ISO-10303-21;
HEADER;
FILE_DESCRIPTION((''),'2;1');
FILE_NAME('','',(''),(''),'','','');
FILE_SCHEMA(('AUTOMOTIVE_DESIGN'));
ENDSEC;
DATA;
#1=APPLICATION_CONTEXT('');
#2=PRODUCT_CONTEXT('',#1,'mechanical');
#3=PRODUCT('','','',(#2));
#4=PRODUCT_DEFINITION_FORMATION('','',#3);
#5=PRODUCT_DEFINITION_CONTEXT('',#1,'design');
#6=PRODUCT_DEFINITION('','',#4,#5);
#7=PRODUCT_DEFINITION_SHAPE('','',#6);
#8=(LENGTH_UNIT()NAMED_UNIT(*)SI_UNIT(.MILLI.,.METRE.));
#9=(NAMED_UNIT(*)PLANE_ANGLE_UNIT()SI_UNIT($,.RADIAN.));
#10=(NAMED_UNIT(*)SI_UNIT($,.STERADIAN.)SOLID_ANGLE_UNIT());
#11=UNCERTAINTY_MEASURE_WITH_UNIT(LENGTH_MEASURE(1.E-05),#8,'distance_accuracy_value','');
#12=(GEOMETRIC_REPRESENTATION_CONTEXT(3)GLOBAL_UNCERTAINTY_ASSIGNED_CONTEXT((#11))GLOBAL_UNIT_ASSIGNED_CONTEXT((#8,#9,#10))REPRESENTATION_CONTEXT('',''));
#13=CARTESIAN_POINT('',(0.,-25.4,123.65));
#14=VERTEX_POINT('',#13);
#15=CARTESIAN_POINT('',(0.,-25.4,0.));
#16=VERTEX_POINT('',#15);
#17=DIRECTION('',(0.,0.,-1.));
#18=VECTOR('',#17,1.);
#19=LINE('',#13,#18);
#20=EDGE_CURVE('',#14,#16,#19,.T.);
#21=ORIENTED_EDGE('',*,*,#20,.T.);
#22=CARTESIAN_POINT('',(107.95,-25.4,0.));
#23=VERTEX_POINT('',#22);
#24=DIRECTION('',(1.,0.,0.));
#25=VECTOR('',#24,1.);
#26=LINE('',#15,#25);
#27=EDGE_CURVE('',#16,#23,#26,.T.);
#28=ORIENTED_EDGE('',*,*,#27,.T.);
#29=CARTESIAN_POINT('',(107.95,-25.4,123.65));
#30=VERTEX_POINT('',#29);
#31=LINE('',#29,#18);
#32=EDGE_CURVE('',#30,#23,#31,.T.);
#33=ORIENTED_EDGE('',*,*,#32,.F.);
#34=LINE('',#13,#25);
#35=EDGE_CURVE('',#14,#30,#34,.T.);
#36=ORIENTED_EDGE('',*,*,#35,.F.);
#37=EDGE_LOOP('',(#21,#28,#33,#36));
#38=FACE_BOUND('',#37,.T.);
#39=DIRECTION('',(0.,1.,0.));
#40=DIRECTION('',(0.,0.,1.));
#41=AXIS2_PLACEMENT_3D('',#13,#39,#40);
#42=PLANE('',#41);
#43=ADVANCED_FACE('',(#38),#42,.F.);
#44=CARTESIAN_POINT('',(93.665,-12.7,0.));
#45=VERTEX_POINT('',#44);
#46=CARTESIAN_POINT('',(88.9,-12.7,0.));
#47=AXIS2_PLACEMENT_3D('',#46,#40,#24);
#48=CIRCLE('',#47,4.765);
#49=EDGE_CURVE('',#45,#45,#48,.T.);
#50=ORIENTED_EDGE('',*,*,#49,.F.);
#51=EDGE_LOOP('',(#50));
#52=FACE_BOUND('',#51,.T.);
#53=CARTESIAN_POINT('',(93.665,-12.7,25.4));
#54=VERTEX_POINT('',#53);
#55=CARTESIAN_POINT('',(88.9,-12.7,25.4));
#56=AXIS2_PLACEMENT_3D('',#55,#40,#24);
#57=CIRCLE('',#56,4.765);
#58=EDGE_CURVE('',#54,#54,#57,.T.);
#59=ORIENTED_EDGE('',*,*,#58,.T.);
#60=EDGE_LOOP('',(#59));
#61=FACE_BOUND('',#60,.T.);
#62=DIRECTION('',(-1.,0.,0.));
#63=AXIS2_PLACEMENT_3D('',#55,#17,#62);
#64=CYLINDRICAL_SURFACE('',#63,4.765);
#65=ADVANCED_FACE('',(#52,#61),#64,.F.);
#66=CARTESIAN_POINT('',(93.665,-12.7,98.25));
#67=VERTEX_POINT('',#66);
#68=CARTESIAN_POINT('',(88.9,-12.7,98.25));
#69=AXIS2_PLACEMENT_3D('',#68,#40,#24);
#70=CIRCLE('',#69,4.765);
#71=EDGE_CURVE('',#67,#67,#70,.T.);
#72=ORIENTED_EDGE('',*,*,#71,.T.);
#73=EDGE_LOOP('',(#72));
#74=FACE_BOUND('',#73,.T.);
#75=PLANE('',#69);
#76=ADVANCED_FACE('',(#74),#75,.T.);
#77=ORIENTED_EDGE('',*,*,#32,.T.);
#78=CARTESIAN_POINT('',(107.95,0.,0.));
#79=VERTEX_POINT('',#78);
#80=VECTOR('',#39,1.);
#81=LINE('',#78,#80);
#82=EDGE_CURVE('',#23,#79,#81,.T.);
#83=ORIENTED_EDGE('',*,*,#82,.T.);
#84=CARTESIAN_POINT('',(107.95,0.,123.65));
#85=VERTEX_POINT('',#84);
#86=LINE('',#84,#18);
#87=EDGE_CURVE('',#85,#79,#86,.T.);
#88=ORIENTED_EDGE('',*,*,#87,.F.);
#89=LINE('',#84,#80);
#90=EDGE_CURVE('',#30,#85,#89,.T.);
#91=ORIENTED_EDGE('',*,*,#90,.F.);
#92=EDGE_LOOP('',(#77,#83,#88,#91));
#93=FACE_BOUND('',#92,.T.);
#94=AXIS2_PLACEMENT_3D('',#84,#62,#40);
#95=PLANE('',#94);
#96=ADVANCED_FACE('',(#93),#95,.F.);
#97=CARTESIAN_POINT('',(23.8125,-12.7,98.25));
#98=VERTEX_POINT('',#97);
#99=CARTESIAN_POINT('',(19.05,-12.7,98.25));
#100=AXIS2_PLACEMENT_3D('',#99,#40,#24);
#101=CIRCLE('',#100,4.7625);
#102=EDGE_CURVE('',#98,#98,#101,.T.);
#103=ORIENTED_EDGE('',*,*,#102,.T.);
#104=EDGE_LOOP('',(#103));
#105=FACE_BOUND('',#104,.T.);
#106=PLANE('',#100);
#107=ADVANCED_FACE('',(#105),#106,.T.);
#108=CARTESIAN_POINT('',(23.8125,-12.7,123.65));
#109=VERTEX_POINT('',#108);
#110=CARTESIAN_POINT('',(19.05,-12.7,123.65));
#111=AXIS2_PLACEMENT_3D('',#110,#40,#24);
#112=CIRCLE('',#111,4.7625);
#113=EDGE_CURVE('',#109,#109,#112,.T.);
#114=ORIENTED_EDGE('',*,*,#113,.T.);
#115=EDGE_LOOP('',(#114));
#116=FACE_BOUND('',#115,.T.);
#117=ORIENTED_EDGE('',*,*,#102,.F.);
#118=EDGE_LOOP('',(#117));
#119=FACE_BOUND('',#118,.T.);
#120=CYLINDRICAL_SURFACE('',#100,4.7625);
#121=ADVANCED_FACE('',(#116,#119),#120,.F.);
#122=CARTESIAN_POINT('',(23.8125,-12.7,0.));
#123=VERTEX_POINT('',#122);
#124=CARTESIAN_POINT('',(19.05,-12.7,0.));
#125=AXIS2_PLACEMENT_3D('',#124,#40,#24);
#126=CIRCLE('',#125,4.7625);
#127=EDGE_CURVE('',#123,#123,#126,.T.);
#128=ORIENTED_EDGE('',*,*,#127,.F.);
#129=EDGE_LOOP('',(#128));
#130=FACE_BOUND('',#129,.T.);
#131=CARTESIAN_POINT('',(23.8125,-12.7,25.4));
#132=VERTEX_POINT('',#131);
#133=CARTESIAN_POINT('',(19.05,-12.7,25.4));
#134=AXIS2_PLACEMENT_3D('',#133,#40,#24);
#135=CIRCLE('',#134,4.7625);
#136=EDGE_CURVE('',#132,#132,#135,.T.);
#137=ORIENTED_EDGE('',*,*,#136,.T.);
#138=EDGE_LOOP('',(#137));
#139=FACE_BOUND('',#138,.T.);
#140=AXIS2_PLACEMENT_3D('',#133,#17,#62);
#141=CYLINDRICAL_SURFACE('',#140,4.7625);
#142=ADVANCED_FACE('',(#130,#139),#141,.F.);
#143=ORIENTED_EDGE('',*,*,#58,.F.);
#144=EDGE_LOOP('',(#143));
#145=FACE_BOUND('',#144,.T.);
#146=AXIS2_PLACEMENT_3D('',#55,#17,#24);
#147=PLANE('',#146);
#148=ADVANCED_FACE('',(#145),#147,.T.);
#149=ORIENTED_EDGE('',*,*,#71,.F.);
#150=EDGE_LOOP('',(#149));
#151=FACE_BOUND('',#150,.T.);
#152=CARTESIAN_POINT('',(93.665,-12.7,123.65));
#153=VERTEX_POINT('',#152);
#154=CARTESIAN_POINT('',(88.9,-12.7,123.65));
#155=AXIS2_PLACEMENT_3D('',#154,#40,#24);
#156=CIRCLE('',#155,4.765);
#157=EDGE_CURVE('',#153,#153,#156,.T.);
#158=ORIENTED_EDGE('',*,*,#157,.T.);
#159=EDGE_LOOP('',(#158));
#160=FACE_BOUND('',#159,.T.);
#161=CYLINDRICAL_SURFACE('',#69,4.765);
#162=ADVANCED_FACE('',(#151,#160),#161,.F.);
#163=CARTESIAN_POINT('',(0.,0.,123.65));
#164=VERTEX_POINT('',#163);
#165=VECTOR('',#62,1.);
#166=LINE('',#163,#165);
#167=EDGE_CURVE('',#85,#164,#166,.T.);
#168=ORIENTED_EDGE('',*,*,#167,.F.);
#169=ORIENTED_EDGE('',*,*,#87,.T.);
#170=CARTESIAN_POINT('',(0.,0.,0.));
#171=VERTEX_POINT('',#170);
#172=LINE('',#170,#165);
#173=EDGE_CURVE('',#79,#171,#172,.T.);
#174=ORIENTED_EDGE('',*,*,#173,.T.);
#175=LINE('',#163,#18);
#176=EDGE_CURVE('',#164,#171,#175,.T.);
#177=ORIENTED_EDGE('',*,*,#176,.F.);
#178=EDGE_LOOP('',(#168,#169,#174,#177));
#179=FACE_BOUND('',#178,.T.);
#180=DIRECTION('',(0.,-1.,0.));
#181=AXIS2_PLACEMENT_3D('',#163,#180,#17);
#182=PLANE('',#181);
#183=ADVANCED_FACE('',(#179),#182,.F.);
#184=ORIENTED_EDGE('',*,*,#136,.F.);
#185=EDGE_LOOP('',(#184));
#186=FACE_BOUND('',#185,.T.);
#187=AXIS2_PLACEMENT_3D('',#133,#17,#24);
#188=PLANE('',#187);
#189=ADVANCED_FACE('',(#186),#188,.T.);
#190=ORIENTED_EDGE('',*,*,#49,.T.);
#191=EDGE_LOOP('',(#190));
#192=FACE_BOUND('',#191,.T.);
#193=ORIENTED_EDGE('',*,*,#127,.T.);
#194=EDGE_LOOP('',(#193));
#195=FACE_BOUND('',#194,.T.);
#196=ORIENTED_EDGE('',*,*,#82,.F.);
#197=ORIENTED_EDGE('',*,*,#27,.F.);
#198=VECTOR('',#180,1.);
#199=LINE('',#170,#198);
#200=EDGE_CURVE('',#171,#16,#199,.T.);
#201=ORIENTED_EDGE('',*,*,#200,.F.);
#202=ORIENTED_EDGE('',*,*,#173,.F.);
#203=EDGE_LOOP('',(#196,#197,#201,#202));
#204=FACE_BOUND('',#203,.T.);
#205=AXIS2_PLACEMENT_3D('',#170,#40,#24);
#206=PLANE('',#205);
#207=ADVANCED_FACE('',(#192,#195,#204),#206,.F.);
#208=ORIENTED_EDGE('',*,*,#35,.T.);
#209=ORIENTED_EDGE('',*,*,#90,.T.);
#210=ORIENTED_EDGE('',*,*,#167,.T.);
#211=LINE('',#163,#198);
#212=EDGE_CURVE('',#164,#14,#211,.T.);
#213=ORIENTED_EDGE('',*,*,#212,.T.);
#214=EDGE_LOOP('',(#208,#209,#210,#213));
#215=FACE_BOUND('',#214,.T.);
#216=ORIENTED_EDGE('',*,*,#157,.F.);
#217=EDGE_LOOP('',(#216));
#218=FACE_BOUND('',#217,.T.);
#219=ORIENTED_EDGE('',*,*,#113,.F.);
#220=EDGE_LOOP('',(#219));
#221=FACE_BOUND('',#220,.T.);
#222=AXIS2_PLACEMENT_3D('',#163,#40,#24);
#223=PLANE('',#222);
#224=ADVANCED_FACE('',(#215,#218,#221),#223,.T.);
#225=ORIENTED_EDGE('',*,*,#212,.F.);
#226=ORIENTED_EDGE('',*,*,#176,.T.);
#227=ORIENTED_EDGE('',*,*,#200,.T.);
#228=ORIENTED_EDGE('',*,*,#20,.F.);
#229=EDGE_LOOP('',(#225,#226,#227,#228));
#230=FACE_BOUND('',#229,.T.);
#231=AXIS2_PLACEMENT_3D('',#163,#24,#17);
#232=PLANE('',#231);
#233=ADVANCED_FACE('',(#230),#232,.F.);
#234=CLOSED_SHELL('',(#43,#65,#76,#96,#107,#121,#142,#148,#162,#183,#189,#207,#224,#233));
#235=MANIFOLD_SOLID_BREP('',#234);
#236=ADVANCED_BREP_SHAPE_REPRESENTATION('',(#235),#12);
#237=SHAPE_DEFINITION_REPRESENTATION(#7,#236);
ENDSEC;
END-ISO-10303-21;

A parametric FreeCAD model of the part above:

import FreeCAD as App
import Part
import Sketcher
Q = App.Units.Quantity


def add_polygon(sketch, points):
    """Adds a closed chain of lines whose ends are joined by coincident constraints."""
    first, n = sketch.GeometryCount, len(points)
    for a, b in zip(points, points[1:] + points[:1]):
        sketch.addGeometry(Part.LineSegment(App.Vector(*a, 0), App.Vector(*b, 0)), False)
    for i in range(n):
        sketch.addConstraint(Sketcher.Constraint("Coincident", first + i, 2, first + (i + 1) % n, 1))

doc = App.newDocument("Part")
body = doc.addObject("PartDesign::Body", "Body")

sketch1 = doc.addObject("Sketcher::SketchObject", "Sketch")
body.addObject(sketch1)
sketch1.AttachmentSupport = (doc.XY_Plane, [""])
sketch1.MapMode = "FlatFace"
add_polygon(sketch1, [(0, 0), (0, -25.4), (107.95, -25.4), (107.95, 0)])
sketch1.addConstraint(Sketcher.Constraint("Vertical", 0))
sketch1.addConstraint(Sketcher.Constraint("Horizontal", 1))
sketch1.addConstraint(Sketcher.Constraint("Vertical", 2))
sketch1.addConstraint(Sketcher.Constraint("Horizontal", 3))
sketch1.addConstraint(Sketcher.Constraint("Coincident", 3, 2, -1, 1))
sketch1.addConstraint(Sketcher.Constraint("DistanceY", 0, 2, 0, 1, Q("1 in")))
sketch1.addConstraint(Sketcher.Constraint("DistanceX", 1, 1, 1, 2, Q("4.25 in")))
pad1 = doc.addObject("PartDesign::Pad", "Pad")
body.addObject(pad1)
pad1.Profile = sketch1
pad1.Length = 123.65

sketch2 = doc.addObject("Sketcher::SketchObject", "Sketch001")
body.addObject(sketch2)
sketch2.AttachmentSupport = (doc.XY_Plane, [""])
sketch2.MapMode = "FlatFace"
sketch2.AttachmentOffset = App.Placement(App.Vector(0, 0, 123.65), App.Rotation())
sketch2.addGeometry(Part.Circle(App.Vector(19.05, -12.7, 0), App.Vector(0, 0, 1), 4.7625), False)
sketch2.addGeometry(Part.Circle(App.Vector(88.9, -12.7, 0), App.Vector(0, 0, 1), 4.765), False)
sketch2.addConstraint(Sketcher.Constraint("Horizontal", 0, 3, 1, 3))
sketch2.addConstraint(Sketcher.Constraint("Diameter", 0, Q("0.375 in")))
sketch2.addConstraint(Sketcher.Constraint("DistanceY", 0, 3, -1, 1, Q("0.5 in")))
sketch2.addConstraint(Sketcher.Constraint("DistanceX", -1, 1, 1, 3, Q("3.5 in")))
sketch2.addConstraint(Sketcher.Constraint("Diameter", 1, 9.53))
sketch2.addConstraint(Sketcher.Constraint("DistanceX", -1, 1, 0, 3, Q("0.75 in")))
pocket1 = doc.addObject("PartDesign::Pocket", "Pocket")
body.addObject(pocket1)
pocket1.Profile = sketch2
pocket1.Length = Q("1 in")
doc.recompute()

datumplane = doc.addObject("PartDesign::Plane", "DatumPlane")
body.addObject(datumplane)
datumplane.AttachmentSupport = (doc.XY_Plane, [""])
datumplane.MapMode = "FlatFace"
datumplane.AttachmentOffset = App.Placement(App.Vector(0, 0, 61.825), App.Rotation())
mirrored = doc.addObject("PartDesign::Mirrored", "Mirrored")
body.addObject(mirrored)
mirrored.Originals = [pocket1]
mirrored.MirrorPlane = (datumplane, [""])
body.Tip = mirrored

doc.recompute()
